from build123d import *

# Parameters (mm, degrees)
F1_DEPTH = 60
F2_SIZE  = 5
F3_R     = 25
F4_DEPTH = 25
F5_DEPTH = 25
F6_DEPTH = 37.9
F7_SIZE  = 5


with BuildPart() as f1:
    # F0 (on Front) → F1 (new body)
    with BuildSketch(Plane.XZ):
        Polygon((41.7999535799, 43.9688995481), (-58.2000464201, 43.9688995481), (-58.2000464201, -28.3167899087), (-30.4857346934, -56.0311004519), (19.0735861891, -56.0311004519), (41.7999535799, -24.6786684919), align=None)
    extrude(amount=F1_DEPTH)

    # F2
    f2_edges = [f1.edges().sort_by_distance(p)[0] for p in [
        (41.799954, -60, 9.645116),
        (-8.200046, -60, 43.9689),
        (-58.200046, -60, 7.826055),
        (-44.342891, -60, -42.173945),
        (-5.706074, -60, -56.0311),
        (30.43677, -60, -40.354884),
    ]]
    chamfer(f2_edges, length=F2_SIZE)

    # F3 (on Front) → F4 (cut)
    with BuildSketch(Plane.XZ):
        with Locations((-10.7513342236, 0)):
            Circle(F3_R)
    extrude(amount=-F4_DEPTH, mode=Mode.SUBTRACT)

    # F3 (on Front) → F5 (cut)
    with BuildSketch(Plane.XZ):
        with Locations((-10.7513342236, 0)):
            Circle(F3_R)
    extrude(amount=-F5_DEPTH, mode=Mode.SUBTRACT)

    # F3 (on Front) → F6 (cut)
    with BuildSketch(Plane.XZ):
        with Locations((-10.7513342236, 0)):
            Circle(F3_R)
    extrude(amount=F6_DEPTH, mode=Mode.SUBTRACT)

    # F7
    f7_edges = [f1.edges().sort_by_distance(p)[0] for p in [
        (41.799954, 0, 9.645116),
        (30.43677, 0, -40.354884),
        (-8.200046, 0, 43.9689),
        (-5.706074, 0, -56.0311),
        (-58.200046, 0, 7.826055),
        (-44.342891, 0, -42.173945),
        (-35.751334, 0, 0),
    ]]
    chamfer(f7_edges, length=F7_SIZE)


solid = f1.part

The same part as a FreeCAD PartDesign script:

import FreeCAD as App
import Part
import Sketcher
Q = App.Units.Quantity


def edges_at(feature, points):
    """Names of the edges that pass closest to the given points."""
    edges = feature.Shape.Edges
    near = lambda p: min(range(len(edges)), key=lambda i: edges[i].distToShape(Part.Vertex(*p))[0])
    return sorted({f"Edge{near(p) + 1}" for p in points})

doc = App.newDocument("Part")
body = doc.addObject("PartDesign::Body", "Body")

# Sketch on XZ plane
sketch1 = body.newObject("Sketcher::SketchObject", "Sketch")
sketch1.AttachmentSupport = (doc.getObject("XZ_Plane"), [""])
sketch1.MapMode = "FlatFace"
sketch1.addGeometry(Part.LineSegment(App.Vector(42, 44, 0), App.Vector(-58, 44, 0)), False)
sketch1.addGeometry(Part.LineSegment(App.Vector(-58, 44, 0), App.Vector(-58, -28, 0)), False)
sketch1.addGeometry(Part.LineSegment(App.Vector(-58, -28, 0), App.Vector(-30, -56, 0)), False)
sketch1.addGeometry(Part.LineSegment(App.Vector(-30, -56, 0), App.Vector(19, -56, 0)), False)
sketch1.addGeometry(Part.LineSegment(App.Vector(19, -56, 0), App.Vector(42, -25, 0)), False)
sketch1.addGeometry(Part.LineSegment(App.Vector(42, -25, 0), App.Vector(42, 44, 0)), False)
sketch1.addConstraint(Sketcher.Constraint("Coincident", 0, 2, 1, 1))
sketch1.addConstraint(Sketcher.Constraint("Coincident", 1, 2, 2, 1))
sketch1.addConstraint(Sketcher.Constraint("Coincident", 2, 2, 3, 1))
sketch1.addConstraint(Sketcher.Constraint("Coincident", 3, 2, 4, 1))
sketch1.addConstraint(Sketcher.Constraint("Coincident", 4, 2, 5, 1))
sketch1.addConstraint(Sketcher.Constraint("Coincident", 5, 2, 0, 1))
sketch1.addConstraint(Sketcher.Constraint("Horizontal", 0))
sketch1.addConstraint(Sketcher.Constraint("Vertical", 1))
sketch1.addConstraint(Sketcher.Constraint("Horizontal", 3))
sketch1.addConstraint(Sketcher.Constraint("Vertical", 5))
sketch1.addConstraint(Sketcher.Constraint("DistanceX", 0, 2, 0, 1, 100.0))
sketch1.addConstraint(Sketcher.Constraint("Angle", 2, Q("-44.999999 deg")))
sketch1.addConstraint(Sketcher.Constraint("DistanceY", 2, 2, 0, 2, 100.0))
sketch1.addConstraint(Sketcher.Constraint("DistanceX", 3, 1, 3, 2, 49.559321))
sketch1.addConstraint(Sketcher.Constraint("DistanceY", 1, 2, 1, 1, 72.285689))
sketch1.addConstraint(Sketcher.Constraint("DistanceY", 5, 1, 5, 2, 68.647568))
sketch1.addConstraint(Sketcher.Constraint("DistanceY", -1, 1, 0, 2, 43.9689))
sketch1.addConstraint(Sketcher.Constraint("DistanceX", 0, 2, -1, 1, 58.200046))
pad1 = body.newObject("PartDesign::Pad", "Pad")
pad1.Profile = sketch1
pad1.Length = 60
doc.recompute()

chamfer = body.newObject("PartDesign::Chamfer", "Chamfer")
chamfer.Base = (pad1, edges_at(pad1, [
    (41.8, -60, 9.645),
    (-8.2, -60, 43.969),
    (-58.2, -60, 7.826),
    (-44.343, -60, -42.174),
    (-5.706, -60, -56.031),
    (30.437, -60, -40.355),
]))
chamfer.Size = 5

# Sketch on XZ plane
sketch2 = body.newObject("Sketcher::SketchObject", "Sketch001")
sketch2.AttachmentSupport = (doc.getObject("XZ_Plane"), [""])
sketch2.MapMode = "FlatFace"
sketch2.addGeometry(Part.Circle(App.Vector(-11, 0, 0), App.Vector(0, 0, 1), 25), False)
sketch2.addConstraint(Sketcher.Constraint("PointOnObject", 0, 3, -1))
sketch2.addConstraint(Sketcher.Constraint("Diameter", 0, 50.0))
sketch2.addConstraint(Sketcher.Constraint("DistanceX", 0, 3, -1, 1, 10.751334))
pocket1 = body.newObject("PartDesign::Pocket", "Pocket")
pocket1.Profile = sketch2
pocket1.Length = 25

# Sketch on XZ plane
sketch3 = body.newObject("Sketcher::SketchObject", "Sketch002")
sketch3.AttachmentSupport = (doc.getObject("XZ_Plane"), [""])
sketch3.MapMode = "FlatFace"
sketch3.addGeometry(Part.Circle(App.Vector(-11, 0, 0), App.Vector(0, 0, 1), 25), False)
sketch3.addConstraint(Sketcher.Constraint("PointOnObject", 0, 3, -1))
sketch3.addConstraint(Sketcher.Constraint("Diameter", 0, 50.0))
sketch3.addConstraint(Sketcher.Constraint("DistanceX", 0, 3, -1, 1, 10.751334))
pocket2 = body.newObject("PartDesign::Pocket", "Pocket001")
pocket2.Profile = sketch3
pocket2.Length = 25

# Sketch on XZ plane
sketch4 = body.newObject("Sketcher::SketchObject", "Sketch003")
sketch4.AttachmentSupport = (doc.getObject("XZ_Plane"), [""])
sketch4.MapMode = "FlatFace"
sketch4.addGeometry(Part.Circle(App.Vector(-11, 0, 0), App.Vector(0, 0, 1), 25), False)
sketch4.addConstraint(Sketcher.Constraint("PointOnObject", 0, 3, -1))
sketch4.addConstraint(Sketcher.Constraint("Diameter", 0, 50.0))
sketch4.addConstraint(Sketcher.Constraint("DistanceX", 0, 3, -1, 1, 10.751334))
pocket3 = body.newObject("PartDesign::Pocket", "Pocket002")
pocket3.Profile = sketch4
pocket3.Length = 37.9
pocket3.Reversed = True
doc.recompute()

chamfer2 = body.newObject("PartDesign::Chamfer", "Chamfer001")
chamfer2.Base = (pocket3, edges_at(pocket3, [
    (41.8, 0, 9.645),
    (30.437, 0, -40.355),
    (-8.2, 0, 43.969),
    (-5.706, 0, -56.031),
    (-58.2, 0, 7.826),
    (-44.343, 0, -42.174),
    (-35.751, 0, 0),
]))
chamfer2.Size = 5

doc.recompute()
